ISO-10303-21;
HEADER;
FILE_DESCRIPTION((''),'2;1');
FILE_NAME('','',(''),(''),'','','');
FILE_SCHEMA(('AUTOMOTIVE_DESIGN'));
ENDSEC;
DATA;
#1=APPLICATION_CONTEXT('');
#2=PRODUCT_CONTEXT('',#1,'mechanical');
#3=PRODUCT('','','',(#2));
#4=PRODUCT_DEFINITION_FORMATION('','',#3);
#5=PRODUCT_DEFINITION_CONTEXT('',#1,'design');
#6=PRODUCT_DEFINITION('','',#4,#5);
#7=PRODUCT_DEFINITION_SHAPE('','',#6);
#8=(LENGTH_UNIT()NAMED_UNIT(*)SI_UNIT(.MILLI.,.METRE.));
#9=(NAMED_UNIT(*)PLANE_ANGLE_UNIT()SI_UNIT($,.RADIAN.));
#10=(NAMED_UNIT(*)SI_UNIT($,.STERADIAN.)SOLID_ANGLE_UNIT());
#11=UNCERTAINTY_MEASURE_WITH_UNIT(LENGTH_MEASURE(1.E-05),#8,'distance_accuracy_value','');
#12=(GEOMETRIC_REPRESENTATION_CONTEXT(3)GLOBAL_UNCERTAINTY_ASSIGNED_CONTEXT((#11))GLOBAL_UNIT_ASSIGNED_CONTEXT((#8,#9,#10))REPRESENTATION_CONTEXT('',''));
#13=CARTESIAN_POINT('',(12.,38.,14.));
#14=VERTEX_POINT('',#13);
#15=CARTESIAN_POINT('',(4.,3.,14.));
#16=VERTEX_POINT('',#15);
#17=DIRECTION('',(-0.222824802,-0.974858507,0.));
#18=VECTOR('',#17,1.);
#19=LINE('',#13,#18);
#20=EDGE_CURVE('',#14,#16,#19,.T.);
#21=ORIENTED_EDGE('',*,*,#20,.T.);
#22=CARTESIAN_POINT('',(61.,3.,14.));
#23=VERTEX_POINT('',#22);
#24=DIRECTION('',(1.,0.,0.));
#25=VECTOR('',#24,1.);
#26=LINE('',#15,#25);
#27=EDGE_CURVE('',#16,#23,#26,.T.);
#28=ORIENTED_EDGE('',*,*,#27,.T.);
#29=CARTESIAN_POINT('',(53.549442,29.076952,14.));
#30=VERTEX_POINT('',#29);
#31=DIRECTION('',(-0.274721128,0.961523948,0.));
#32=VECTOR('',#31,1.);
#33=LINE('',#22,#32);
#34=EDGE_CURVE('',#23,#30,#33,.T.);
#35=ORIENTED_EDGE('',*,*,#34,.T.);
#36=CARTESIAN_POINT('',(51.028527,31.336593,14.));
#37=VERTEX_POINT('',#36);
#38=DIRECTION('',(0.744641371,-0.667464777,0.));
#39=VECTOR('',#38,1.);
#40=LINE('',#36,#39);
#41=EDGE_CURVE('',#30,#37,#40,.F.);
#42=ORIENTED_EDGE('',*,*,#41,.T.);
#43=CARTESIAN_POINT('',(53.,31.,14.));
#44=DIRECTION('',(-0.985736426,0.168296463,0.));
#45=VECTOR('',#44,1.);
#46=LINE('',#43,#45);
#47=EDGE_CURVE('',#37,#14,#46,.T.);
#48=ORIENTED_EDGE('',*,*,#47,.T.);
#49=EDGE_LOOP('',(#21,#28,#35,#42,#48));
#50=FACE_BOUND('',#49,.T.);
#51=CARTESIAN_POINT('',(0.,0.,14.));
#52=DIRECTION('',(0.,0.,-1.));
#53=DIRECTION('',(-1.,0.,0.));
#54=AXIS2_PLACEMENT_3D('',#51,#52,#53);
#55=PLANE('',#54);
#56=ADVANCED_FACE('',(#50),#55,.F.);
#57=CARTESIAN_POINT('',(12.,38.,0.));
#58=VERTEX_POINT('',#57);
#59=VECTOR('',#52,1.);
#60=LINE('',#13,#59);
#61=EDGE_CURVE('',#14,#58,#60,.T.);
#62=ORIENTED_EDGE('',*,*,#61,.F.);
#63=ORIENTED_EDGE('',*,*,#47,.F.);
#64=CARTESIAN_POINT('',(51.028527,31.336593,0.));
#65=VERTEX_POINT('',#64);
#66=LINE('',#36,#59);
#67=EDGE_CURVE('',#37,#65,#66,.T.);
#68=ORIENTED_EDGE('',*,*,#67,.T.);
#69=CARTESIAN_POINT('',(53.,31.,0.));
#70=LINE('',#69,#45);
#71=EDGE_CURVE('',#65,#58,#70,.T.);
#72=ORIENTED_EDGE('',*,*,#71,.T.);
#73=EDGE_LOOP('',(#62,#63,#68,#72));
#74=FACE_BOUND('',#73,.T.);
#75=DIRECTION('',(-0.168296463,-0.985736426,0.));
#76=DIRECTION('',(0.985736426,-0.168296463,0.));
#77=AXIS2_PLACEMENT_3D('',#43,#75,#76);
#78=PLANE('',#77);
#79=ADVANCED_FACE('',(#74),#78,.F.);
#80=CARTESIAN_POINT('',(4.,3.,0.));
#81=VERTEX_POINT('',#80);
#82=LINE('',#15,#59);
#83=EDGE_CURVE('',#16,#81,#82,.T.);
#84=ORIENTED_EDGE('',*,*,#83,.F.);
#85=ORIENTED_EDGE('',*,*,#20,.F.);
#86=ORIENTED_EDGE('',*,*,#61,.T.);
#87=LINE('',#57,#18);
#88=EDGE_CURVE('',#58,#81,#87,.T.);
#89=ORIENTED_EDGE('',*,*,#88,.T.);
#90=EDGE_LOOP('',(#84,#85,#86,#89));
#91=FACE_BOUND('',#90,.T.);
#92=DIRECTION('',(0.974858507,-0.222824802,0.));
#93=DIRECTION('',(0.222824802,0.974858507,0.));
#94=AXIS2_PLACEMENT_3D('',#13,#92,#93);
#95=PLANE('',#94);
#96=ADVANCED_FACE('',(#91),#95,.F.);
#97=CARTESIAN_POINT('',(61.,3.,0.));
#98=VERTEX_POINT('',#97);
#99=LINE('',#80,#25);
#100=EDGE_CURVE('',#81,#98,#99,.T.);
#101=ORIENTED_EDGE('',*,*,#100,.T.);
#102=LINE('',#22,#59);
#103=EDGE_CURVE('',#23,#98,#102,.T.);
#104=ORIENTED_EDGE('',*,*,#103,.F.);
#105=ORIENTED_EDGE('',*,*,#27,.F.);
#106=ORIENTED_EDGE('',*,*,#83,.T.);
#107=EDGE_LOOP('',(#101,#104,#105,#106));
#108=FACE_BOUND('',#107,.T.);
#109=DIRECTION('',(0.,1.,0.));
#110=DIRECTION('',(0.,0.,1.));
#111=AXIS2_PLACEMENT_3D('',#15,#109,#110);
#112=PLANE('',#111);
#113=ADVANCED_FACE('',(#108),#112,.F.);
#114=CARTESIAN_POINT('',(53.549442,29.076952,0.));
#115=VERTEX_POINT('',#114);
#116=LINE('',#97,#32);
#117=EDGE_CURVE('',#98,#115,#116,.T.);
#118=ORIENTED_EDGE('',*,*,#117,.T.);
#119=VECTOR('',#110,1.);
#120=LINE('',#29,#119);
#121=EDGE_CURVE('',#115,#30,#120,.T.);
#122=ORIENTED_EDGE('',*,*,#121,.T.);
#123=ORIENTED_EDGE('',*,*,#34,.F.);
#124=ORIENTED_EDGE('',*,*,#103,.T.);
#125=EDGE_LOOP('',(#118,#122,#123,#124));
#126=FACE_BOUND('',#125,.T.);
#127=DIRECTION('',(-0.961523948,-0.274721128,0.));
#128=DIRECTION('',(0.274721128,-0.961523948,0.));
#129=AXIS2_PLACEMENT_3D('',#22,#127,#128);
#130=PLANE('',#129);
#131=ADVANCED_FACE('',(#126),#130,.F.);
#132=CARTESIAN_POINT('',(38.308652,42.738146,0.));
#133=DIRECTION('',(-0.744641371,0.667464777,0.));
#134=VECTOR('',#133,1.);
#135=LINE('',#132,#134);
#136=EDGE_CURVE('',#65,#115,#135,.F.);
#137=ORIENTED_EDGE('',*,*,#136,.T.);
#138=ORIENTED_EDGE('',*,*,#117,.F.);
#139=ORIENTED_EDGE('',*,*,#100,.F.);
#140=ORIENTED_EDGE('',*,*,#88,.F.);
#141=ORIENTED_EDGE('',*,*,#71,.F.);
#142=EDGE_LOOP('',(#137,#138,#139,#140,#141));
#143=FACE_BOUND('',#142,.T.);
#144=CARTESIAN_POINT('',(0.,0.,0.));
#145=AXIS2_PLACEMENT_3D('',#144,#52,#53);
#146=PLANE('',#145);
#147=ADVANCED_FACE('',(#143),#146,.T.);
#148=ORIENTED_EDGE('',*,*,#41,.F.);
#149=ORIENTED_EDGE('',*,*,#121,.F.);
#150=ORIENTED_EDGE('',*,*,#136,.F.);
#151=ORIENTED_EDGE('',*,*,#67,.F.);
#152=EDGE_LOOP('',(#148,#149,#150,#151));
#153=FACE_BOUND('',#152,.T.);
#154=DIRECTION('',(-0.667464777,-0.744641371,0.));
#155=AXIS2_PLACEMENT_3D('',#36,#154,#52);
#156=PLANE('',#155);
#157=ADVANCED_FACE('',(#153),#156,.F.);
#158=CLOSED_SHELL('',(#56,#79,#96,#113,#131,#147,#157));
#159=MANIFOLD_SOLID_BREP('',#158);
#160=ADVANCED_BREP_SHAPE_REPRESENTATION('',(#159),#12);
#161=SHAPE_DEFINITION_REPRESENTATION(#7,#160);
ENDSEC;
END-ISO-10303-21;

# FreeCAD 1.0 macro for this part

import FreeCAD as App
import Part
import Sketcher
Q = App.Units.Quantity


def edges_at(feature, points):
    """Names of the edges that pass closest to the given points."""
    edges = feature.Shape.Edges
    near = lambda p: min(range(len(edges)), key=lambda i: edges[i].distToShape(Part.Vertex(*p))[0])
    return sorted({f"Edge{near(p) + 1}" for p in points})

doc = App.newDocument("Part")
body = doc.addObject("PartDesign::Body", "Body")

# Sketch on XY plane
sketch1 = body.newObject("Sketcher::SketchObject", "Sketch")
sketch1.AttachmentSupport = (doc.getObject("XY_Plane"), [""])
sketch1.MapMode = "FlatFace"
sketch1.addGeometry(Part.LineSegment(App.Vector(4, 3, 0), App.Vector(61, 3, 0)), False)
sketch1.addGeometry(Part.LineSegment(App.Vector(61, 3, 0), App.Vector(53, 31, 0)), False)
sketch1.addGeometry(Part.LineSegment(App.Vector(53, 31, 0), App.Vector(12, 38, 0)), False)
sketch1.addGeometry(Part.LineSegment(App.Vector(12, 38, 0), App.Vector(4, 3, 0)), False)
sketch1.addConstraint(Sketcher.Constraint("Coincident", 0, 2, 1, 1))
sketch1.addConstraint(Sketcher.Constraint("Coincident", 1, 2, 2, 1))
sketch1.addConstraint(Sketcher.Constraint("Coincident", 2, 2, 3, 1))
sketch1.addConstraint(Sketcher.Constraint("Coincident", 3, 2, 0, 1))
sketch1.addConstraint(Sketcher.Constraint("Horizontal", 0))
sketch1.addConstraint(Sketcher.Constraint("DistanceX", 0, 1, 0, 2, Q("57 mm")))
sketch1.addConstraint(Sketcher.Constraint("DistanceX", -1, 1, 0, 2, Q("61 mm")))
sketch1.addConstraint(Sketcher.Constraint("DistanceY", -1, 1, 0, 2, Q("3 mm")))
sketch1.addConstraint(Sketcher.Constraint("DistanceX", -1, 1, 1, 2, Q("53 mm")))
sketch1.addConstraint(Sketcher.Constraint("DistanceY", -1, 1, 1, 2, Q("31 mm")))
sketch1.addConstraint(Sketcher.Constraint("DistanceX", -1, 1, 2, 2, Q("12 mm")))
sketch1.addConstraint(Sketcher.Constraint("DistanceY", -1, 1, 2, 2, Q("38 mm")))
pad1 = body.newObject("PartDesign::Pad", "Pad")
pad1.Profile = sketch1
pad1.Length = 14
doc.recompute()

chamfer = body.newObject("PartDesign::Chamfer", "Chamfer")
chamfer.Base = (pad1, edges_at(pad1, [(53, 31, 7)]))
chamfer.Size = 2

doc.recompute()
